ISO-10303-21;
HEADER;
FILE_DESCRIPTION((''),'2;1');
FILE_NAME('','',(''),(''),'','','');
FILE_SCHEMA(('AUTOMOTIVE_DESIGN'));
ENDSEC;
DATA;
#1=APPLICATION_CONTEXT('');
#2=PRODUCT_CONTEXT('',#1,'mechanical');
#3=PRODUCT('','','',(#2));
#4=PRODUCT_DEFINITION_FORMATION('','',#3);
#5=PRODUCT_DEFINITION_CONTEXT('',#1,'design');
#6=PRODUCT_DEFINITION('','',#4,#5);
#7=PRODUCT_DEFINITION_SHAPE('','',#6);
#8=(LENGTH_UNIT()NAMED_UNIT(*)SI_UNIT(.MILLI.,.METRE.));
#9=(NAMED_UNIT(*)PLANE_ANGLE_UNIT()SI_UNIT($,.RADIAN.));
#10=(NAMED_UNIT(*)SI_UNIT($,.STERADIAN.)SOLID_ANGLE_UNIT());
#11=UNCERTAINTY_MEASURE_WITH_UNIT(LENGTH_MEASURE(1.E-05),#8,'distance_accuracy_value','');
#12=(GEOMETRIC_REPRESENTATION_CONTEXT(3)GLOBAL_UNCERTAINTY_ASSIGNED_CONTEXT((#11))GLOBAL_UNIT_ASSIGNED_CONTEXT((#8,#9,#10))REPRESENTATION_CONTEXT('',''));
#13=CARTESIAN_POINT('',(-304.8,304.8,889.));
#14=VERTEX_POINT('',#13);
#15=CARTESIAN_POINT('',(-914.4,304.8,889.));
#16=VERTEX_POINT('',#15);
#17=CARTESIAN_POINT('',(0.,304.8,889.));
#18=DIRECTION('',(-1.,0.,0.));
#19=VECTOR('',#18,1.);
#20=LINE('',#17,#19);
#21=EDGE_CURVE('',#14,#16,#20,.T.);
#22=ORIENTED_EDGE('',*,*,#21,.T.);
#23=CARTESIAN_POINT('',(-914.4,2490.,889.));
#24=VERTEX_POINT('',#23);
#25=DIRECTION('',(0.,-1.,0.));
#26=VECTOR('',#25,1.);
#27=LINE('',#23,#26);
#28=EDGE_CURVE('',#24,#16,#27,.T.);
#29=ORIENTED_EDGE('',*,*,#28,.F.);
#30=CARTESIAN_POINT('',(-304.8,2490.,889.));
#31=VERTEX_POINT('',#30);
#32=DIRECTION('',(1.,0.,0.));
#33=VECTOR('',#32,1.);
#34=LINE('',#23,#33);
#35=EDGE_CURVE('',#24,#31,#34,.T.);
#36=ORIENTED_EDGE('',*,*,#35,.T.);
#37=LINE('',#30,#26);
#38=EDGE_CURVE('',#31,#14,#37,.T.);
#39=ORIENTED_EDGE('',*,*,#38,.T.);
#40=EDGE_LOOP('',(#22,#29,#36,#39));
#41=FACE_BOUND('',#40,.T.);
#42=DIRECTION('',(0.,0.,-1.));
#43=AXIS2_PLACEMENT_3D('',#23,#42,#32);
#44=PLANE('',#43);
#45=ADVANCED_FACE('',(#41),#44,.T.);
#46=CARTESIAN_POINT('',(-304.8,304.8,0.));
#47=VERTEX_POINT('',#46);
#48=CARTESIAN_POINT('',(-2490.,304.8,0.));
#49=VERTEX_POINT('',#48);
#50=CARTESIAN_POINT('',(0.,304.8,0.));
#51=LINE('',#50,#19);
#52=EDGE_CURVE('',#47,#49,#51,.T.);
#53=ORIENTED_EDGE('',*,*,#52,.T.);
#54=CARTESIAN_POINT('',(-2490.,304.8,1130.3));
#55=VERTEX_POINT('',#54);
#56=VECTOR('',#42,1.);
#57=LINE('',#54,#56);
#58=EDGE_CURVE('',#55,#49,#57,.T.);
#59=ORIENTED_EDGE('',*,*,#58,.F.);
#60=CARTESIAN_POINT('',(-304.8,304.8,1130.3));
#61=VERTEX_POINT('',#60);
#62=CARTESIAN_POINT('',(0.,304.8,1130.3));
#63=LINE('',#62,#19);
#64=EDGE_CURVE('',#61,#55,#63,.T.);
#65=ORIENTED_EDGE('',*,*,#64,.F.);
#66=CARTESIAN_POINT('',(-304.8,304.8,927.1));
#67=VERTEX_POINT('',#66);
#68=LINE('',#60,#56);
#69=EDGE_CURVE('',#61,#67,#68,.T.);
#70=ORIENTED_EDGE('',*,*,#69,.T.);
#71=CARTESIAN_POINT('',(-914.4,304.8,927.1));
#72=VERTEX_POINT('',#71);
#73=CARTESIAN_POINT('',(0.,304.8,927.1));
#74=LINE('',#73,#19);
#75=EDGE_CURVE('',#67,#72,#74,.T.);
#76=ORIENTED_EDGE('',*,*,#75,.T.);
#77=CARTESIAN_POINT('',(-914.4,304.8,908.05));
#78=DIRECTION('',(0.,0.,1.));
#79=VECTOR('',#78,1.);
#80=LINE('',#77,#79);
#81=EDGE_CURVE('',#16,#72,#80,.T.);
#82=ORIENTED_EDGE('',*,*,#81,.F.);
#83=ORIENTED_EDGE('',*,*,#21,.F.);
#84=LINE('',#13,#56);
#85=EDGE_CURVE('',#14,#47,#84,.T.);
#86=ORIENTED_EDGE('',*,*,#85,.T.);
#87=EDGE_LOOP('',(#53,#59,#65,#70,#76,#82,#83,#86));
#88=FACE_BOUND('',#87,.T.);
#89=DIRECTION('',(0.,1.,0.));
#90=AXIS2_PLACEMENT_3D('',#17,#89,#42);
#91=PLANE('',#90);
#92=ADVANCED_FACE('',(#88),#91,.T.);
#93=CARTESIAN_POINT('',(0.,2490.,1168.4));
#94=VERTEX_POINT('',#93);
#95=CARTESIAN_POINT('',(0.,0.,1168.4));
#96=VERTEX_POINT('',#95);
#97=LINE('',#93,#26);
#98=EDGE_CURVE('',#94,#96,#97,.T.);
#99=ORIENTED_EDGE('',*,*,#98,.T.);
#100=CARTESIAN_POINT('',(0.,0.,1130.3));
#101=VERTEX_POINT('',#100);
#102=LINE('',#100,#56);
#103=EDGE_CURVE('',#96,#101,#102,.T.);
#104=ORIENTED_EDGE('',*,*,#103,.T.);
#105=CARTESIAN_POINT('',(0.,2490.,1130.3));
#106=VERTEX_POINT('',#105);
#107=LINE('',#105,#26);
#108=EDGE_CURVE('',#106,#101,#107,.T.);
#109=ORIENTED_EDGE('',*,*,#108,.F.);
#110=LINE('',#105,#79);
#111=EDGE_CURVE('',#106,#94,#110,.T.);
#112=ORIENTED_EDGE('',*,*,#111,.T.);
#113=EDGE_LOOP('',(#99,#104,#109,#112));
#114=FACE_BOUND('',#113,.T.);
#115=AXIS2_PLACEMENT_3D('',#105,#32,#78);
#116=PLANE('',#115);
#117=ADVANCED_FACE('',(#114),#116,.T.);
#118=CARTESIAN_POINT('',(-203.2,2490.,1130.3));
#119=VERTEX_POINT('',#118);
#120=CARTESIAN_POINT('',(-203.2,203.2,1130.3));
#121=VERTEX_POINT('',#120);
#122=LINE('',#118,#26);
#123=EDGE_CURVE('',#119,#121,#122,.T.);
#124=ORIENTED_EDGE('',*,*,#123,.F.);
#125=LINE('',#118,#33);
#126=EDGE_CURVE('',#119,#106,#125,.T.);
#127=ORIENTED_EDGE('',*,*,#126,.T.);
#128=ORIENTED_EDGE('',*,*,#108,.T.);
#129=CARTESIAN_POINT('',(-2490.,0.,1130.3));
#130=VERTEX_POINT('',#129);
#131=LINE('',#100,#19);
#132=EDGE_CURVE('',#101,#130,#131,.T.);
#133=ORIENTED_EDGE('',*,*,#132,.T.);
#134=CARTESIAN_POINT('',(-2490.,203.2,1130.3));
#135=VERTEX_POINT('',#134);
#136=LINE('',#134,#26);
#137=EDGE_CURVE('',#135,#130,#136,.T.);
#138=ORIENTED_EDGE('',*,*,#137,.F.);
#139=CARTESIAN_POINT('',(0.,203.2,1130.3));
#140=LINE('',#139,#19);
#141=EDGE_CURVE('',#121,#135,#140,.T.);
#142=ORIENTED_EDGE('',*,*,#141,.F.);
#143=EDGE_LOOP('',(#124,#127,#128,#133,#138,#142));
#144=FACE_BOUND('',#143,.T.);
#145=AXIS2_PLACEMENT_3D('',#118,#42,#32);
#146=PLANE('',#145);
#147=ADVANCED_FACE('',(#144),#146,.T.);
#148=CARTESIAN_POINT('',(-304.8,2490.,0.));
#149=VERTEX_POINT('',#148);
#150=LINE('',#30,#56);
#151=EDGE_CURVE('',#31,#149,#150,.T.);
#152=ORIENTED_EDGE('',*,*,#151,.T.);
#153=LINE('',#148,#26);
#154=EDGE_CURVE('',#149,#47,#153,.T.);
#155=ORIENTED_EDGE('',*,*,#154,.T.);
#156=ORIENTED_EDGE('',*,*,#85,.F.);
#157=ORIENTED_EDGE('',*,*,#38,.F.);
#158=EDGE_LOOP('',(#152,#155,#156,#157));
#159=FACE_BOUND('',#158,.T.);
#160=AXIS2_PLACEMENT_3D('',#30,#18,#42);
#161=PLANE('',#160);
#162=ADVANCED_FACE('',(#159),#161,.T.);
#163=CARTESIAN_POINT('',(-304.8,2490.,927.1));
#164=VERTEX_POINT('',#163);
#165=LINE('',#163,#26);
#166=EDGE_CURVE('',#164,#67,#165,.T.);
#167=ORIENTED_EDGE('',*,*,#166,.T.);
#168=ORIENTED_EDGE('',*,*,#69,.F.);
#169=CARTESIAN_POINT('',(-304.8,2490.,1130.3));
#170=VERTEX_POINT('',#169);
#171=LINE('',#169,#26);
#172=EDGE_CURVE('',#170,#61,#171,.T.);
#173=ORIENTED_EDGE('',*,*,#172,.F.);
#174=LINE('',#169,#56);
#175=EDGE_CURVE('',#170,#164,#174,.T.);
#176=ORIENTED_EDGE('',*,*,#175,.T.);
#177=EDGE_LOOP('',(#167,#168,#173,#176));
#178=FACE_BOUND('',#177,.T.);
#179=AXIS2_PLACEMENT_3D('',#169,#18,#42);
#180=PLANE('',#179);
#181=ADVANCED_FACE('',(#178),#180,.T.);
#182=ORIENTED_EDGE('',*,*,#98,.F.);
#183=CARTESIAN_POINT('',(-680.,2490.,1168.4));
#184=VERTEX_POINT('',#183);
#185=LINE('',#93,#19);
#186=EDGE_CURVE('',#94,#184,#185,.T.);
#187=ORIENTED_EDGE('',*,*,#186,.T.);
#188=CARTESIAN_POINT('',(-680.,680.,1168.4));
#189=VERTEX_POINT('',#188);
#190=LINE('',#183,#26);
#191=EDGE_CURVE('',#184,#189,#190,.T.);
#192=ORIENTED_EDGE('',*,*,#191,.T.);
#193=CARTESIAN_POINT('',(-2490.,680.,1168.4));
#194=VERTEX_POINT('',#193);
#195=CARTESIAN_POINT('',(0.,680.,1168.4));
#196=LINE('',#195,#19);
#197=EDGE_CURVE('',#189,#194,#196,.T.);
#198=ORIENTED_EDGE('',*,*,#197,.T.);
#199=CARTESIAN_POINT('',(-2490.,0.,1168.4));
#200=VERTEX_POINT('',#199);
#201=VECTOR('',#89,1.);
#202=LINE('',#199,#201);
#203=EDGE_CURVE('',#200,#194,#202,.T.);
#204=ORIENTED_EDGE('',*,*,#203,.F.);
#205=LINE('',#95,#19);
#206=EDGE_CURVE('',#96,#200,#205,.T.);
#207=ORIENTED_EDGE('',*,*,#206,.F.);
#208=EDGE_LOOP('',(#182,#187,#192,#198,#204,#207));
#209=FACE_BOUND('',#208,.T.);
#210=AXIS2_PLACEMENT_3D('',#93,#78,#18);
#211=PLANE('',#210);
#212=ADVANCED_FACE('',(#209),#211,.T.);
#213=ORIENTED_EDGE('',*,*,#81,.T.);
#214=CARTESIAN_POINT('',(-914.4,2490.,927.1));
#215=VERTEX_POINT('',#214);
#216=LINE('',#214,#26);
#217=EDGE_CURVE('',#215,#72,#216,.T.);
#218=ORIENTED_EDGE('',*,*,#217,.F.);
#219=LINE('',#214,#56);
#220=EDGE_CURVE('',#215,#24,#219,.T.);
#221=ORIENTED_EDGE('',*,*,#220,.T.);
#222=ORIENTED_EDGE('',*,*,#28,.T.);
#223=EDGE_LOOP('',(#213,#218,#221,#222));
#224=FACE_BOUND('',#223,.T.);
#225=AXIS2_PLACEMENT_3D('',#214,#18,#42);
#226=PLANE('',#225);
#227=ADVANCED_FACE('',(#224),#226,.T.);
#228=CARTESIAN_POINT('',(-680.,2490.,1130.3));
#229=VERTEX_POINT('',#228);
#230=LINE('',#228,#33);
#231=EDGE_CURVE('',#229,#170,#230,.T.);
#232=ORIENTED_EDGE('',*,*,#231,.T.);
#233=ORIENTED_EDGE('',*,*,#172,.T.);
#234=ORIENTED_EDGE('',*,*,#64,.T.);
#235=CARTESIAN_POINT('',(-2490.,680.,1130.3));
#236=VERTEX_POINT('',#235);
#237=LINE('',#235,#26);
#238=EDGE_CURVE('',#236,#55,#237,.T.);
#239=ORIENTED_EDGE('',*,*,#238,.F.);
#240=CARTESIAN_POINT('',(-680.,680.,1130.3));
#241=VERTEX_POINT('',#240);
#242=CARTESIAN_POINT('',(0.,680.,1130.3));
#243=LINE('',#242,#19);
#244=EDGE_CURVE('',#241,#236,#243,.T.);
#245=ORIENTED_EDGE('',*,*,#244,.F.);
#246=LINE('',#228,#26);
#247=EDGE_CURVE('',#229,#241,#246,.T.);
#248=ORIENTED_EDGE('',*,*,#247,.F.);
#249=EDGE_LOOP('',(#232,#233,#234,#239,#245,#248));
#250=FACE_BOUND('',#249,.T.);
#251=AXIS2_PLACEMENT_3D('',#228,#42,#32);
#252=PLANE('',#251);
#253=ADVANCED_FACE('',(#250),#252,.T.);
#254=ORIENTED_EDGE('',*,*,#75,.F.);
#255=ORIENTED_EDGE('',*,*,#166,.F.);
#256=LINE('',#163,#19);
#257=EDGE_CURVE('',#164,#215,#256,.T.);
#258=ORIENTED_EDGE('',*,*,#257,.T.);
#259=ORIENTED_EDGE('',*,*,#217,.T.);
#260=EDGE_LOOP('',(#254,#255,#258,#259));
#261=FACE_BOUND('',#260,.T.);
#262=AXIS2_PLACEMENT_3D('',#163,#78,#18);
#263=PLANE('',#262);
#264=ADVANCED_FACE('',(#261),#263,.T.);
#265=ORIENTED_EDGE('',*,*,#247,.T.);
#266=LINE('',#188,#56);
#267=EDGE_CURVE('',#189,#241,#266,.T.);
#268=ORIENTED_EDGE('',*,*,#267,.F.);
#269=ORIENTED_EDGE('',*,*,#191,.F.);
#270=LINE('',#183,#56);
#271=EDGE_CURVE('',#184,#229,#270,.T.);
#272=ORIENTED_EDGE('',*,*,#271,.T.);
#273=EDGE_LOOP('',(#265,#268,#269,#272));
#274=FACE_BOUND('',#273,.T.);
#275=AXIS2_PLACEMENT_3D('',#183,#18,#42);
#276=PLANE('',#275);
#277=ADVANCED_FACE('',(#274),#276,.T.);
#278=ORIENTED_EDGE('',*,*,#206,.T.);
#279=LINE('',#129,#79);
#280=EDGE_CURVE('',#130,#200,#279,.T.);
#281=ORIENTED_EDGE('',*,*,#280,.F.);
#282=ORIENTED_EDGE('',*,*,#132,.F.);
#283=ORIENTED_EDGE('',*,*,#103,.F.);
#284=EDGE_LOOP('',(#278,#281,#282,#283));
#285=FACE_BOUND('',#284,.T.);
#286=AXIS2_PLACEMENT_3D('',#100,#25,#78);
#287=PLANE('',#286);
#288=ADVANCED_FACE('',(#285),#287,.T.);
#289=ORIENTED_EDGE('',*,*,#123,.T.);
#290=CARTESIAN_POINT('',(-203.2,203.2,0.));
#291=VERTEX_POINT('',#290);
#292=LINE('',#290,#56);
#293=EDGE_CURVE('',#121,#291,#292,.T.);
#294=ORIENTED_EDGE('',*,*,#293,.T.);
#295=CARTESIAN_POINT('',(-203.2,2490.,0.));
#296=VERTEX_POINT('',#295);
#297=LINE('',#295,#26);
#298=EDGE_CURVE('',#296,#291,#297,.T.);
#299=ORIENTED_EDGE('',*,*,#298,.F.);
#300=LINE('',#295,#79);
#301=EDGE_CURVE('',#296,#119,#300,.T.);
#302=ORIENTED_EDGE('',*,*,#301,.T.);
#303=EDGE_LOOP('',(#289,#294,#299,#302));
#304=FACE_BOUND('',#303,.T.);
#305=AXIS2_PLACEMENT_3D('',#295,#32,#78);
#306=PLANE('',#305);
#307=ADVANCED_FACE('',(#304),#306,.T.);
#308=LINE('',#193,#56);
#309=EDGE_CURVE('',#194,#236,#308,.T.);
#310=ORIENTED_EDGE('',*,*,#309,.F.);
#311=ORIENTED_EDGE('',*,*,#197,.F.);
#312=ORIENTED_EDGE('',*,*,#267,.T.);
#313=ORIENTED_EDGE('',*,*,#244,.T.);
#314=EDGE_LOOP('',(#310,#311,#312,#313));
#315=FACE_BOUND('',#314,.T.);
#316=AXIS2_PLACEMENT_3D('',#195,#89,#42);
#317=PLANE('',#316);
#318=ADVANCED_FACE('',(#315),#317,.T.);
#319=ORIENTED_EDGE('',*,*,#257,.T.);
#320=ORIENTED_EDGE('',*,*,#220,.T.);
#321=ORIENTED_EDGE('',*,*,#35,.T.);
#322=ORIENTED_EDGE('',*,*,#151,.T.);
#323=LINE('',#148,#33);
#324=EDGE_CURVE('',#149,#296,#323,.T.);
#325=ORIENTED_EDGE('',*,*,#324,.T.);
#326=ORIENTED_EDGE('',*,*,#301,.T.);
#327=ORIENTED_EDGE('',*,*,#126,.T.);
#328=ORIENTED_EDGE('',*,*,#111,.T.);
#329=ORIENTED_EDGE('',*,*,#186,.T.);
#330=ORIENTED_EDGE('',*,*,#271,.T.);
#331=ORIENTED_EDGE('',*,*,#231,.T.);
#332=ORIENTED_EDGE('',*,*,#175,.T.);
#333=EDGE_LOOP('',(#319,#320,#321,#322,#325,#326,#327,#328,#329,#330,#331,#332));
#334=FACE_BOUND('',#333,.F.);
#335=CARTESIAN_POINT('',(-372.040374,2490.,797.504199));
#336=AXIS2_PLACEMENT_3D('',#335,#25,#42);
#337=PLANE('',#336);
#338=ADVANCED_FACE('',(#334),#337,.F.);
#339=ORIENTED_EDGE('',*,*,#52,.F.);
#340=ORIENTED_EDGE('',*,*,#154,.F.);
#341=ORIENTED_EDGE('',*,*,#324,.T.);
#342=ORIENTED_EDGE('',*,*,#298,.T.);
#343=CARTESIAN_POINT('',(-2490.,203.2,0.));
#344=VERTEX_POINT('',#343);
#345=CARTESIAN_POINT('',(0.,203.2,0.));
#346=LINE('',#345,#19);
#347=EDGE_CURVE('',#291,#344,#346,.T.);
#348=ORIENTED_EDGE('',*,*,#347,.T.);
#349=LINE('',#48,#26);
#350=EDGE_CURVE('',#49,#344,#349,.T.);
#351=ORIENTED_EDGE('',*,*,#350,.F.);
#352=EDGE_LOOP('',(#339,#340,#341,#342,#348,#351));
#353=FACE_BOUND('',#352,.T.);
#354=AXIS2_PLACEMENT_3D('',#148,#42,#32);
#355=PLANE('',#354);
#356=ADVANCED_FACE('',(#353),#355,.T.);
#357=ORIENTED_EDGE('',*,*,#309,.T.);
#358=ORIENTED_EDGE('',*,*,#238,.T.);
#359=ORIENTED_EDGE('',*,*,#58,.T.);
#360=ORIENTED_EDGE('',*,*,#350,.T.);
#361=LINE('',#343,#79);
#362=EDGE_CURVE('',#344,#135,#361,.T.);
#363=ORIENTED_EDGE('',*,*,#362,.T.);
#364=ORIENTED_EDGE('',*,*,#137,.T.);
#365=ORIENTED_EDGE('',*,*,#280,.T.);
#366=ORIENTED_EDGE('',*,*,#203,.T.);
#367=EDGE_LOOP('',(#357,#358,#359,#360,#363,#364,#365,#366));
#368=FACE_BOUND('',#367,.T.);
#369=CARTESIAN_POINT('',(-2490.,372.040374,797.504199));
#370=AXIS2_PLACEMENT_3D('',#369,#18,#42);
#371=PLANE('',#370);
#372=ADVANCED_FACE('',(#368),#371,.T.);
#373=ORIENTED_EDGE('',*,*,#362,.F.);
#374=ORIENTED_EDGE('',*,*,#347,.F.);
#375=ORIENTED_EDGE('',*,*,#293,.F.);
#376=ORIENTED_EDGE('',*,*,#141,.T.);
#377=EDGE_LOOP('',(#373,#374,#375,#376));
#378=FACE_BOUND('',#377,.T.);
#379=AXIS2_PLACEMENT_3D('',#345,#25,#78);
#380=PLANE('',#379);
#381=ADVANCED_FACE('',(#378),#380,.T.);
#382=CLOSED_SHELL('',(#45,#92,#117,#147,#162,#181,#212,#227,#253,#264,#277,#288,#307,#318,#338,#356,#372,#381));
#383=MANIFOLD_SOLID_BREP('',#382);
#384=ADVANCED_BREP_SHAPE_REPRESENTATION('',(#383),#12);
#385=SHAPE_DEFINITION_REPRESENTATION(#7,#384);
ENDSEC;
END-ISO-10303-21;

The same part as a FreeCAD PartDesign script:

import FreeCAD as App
import Part
import Sketcher
Q = App.Units.Quantity

doc = App.newDocument("Part")
body = doc.addObject("PartDesign::Body", "Body")

# Sketch on XZ plane
sketch1 = body.newObject("Sketcher::SketchObject", "Sketch")
sketch1.AttachmentSupport = (doc.getObject("XZ_Plane"), [""])
sketch1.MapMode = "FlatFace"
sketch1.AttachmentOffset = App.Placement(App.Vector(0, 0, -2490), App.Rotation())
sketch1.addGeometry([
    Part.LineSegment(App.Vector(-203, 0, 0), App.Vector(-203, 1130, 0)),  # 0
    Part.LineSegment(App.Vector(-203, 1130, 0), App.Vector(0, 1130, 0)),  # 1
    Part.LineSegment(App.Vector(0, 1130, 0), App.Vector(0, 1168, 0)),  # 2
    Part.LineSegment(App.Vector(0, 1168, 0), App.Vector(-680, 1168, 0)),  # 3
    Part.LineSegment(App.Vector(-680, 1168, 0), App.Vector(-680, 1130, 0)),  # 4
    Part.LineSegment(App.Vector(-680, 1130, 0), App.Vector(-305, 1130, 0)),  # 5
    Part.LineSegment(App.Vector(-305, 1130, 0), App.Vector(-305, 927, 0)),  # 6
    Part.LineSegment(App.Vector(-305, 927, 0), App.Vector(-914, 927, 0)),  # 7
    Part.LineSegment(App.Vector(-914, 927, 0), App.Vector(-914, 889, 0)),  # 8
    Part.LineSegment(App.Vector(-914, 889, 0), App.Vector(-305, 889, 0)),  # 9
    Part.LineSegment(App.Vector(-305, 889, 0), App.Vector(-305, 0, 0)),  # 10
    Part.LineSegment(App.Vector(-305, 0, 0), App.Vector(-203, 0, 0)),  # 11
], False)
sketch1.addConstraint([
    Sketcher.Constraint("Coincident", 0, 2, 1, 1),
    Sketcher.Constraint("Coincident", 1, 2, 2, 1),
    Sketcher.Constraint("Coincident", 2, 2, 3, 1),
    Sketcher.Constraint("Coincident", 3, 2, 4, 1),
    Sketcher.Constraint("Coincident", 4, 2, 5, 1),
    Sketcher.Constraint("Coincident", 5, 2, 6, 1),
    Sketcher.Constraint("Coincident", 6, 2, 7, 1),
    Sketcher.Constraint("Coincident", 7, 2, 8, 1),
    Sketcher.Constraint("Coincident", 8, 2, 9, 1),
    Sketcher.Constraint("Coincident", 9, 2, 10, 1),
    Sketcher.Constraint("Coincident", 10, 2, 11, 1),
    Sketcher.Constraint("Coincident", 11, 2, 0, 1),
    Sketcher.Constraint("Vertical", 0),
    Sketcher.Constraint("Horizontal", 1),
    Sketcher.Constraint("Vertical", 2),
    Sketcher.Constraint("Horizontal", 3),
    Sketcher.Constraint("Vertical", 4),
    Sketcher.Constraint("Horizontal", 5),
    Sketcher.Constraint("Vertical", 6),
    Sketcher.Constraint("Horizontal", 7),
    Sketcher.Constraint("Vertical", 8),
    Sketcher.Constraint("Horizontal", 9),
    Sketcher.Constraint("Vertical", 10),
    Sketcher.Constraint("Horizontal", 11),
    Sketcher.Constraint("PointOnObject", 1, 2, -2),
    Sketcher.Constraint("PointOnObject", 10, 2, -1),
    Sketcher.Constraint("Horizontal", 1, 2, 4, 2),
    Sketcher.Constraint("Vertical", 6, 2, 9, 2),
    Sketcher.Constraint("Equal", 1, 6),
    Sketcher.Constraint("Equal", 4, 8),
    Sketcher.Constraint("DistanceX", 1, 1, 1, 2, Q("8 in")),
    Sketcher.Constraint("DistanceX", 7, 2, 7, 1, Q("24 in")),
    Sketcher.Constraint("DistanceX", 11, 1, 11, 2, Q("4 in")),
    Sketcher.Constraint("DistanceY", 10, 2, 10, 1, Q("35 in")),
    Sketcher.Constraint("DistanceY", 0, 1, 0, 2, Q("44.5 in")),
    Sketcher.Constraint("DistanceX", 3, 2, 3, 1, 680.0),
])

# Sketch on XY plane
sketch2 = body.newObject("Sketcher::SketchObject", "Sketch001")
sketch2.AttachmentSupport = (doc.getObject("XY_Plane"), [""])
sketch2.MapMode = "FlatFace"
sketch2.addGeometry([
    Part.LineSegment(App.Vector(0, 2490, 0), App.Vector(0, 0, 0)),
    Part.LineSegment(App.Vector(0, 0, 0), App.Vector(-2490, 0, 0)),
], False)
sketch2.addConstraint([
    Sketcher.Constraint("Coincident", 0, 2, 1, 1),
    Sketcher.Constraint("Vertical", 0),
    Sketcher.Constraint("Horizontal", 1),
    Sketcher.Constraint("Coincident", 0, 2, -1, 1),
    Sketcher.Constraint("Equal", 1, 0),
    Sketcher.Constraint("DistanceX", 1, 2, 1, 1, 2490.0),
])
doc.recompute()

additivepipe = body.newObject("PartDesign::AdditivePipe", "AdditivePipe")
additivepipe.Profile = sketch1
additivepipe.Spine = (sketch2, ["Edge1", "Edge2"])
additivepipe.Transition = "Right corner"

# Sketch on XZ plane
sketch3 = body.newObject("Sketcher::SketchObject", "Sketch002")
sketch3.AttachmentSupport = (doc.getObject("XZ_Plane"), [""])
sketch3.MapMode = "FlatFace"
sketch3.AttachmentOffset = App.Placement(App.Vector(0, 0, -36 * 25.4), App.Rotation())
sketch3.addGeometry([
    Part.LineSegment(App.Vector(-914, 927, 0), App.Vector(-914, 889, 0)),
    Part.LineSegment(App.Vector(-914, 889, 0), App.Vector(-2490, 889, 0)),
    Part.LineSegment(App.Vector(-2490, 889, 0), App.Vector(-2490, 927, 0)),
    Part.LineSegment(App.Vector(-2490, 927, 0), App.Vector(-914, 927, 0)),
], False)
sketch3.addConstraint([
    Sketcher.Constraint("Coincident", 0, 2, 1, 1),
    Sketcher.Constraint("Coincident", 1, 2, 2, 1),
    Sketcher.Constraint("Coincident", 2, 2, 3, 1),
    Sketcher.Constraint("Coincident", 3, 2, 0, 1),
    Sketcher.Constraint("Vertical", 0),
    Sketcher.Constraint("Horizontal", 1),
    Sketcher.Constraint("Vertical", 2),
    Sketcher.Constraint("Horizontal", 3),
    Sketcher.Constraint("DistanceY", 0, 2, 0, 1, Q("1.5 in")),
    Sketcher.Constraint("DistanceX", 0, 2, -1, 1, Q("36 in")),
    Sketcher.Constraint("DistanceY", -1, 1, 0, 2, Q("35 in")),
    Sketcher.Constraint("DistanceX", 1, 2, 1, 1, 1575.6),
])
pocket1 = body.newObject("PartDesign::Pocket", "Pocket")
pocket1.Profile = sketch3
pocket1.Length = Q("24 in")
pocket1.Reversed = True

doc.recompute()
